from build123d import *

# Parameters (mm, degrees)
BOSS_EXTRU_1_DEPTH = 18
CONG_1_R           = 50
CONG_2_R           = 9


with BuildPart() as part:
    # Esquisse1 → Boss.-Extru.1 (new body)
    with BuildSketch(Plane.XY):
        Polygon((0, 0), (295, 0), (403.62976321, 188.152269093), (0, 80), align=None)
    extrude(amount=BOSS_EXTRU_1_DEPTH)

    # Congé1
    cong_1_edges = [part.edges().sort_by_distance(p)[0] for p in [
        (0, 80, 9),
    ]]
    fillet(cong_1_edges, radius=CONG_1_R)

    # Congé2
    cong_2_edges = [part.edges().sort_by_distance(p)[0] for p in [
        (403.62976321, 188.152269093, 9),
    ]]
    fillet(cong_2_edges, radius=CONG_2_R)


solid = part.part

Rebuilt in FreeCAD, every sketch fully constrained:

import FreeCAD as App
import Part
import Sketcher

V = App.Vector
Q = App.Units.Quantity


def edges_at(feature, points):
    """Names of the edges that pass closest to the given points."""
    edges = feature.Shape.Edges
    near = lambda p: min(range(len(edges)), key=lambda i: edges[i].distToShape(Part.Vertex(*p))[0])
    return sorted({f"Edge{near(p) + 1}" for p in points})


def add_polygon(sketch, points):
    """Adds a closed chain of lines whose ends are joined by coincident constraints."""
    first, n = sketch.GeometryCount, len(points)
    for a, b in zip(points, points[1:] + points[:1]):
        sketch.addGeometry(Part.LineSegment(App.Vector(*a, 0), App.Vector(*b, 0)), False)
    for i in range(n):
        sketch.addConstraint(Sketcher.Constraint("Coincident", first + i, 2, first + (i + 1) % n, 1))

doc = App.newDocument("Part")
body = doc.addObject("PartDesign::Body", "Body")

# Sketch on XY plane
sketch1 = doc.addObject("Sketcher::SketchObject", "Sketch")
body.addObject(sketch1)
sketch1.AttachmentSupport = (doc.XY_Plane, [""])
sketch1.MapMode = "FlatFace"
add_polygon(sketch1, [(0, 0), (295, 0), (404, 188), (0, 80)])  # lines 0-3
sketch1.addConstraint([
    Sketcher.Constraint("Horizontal", 0),
    Sketcher.Constraint("Vertical", 3),
    Sketcher.Constraint("Coincident", 3, 2, -1, 1),
    Sketcher.Constraint("DistanceX", 0, 1, 0, 2, Q("295 mm")),
    Sketcher.Constraint("DistanceY", 3, 2, 3, 1, Q("80 mm")),
    Sketcher.Constraint("Angle", 1, Q("60 deg")),
    Sketcher.Constraint("Angle", 2, Q("-165 deg")),
])
pad1 = doc.addObject("PartDesign::Pad", "Pad")
body.addObject(pad1)
pad1.Profile = sketch1
pad1.Length = 18
doc.recompute()

fillet = doc.addObject("PartDesign::Fillet", "Fillet")
body.addObject(fillet)
fillet.Base = (pad1, edges_at(pad1, [(0, 80, 9)]))
fillet.Radius = 50
doc.recompute()

fillet2 = doc.addObject("PartDesign::Fillet", "Fillet001")
body.addObject(fillet2)
fillet2.Base = (fillet, edges_at(fillet, [(403.63, 188.152, 9)]))
fillet2.Radius = 9

doc.recompute()
